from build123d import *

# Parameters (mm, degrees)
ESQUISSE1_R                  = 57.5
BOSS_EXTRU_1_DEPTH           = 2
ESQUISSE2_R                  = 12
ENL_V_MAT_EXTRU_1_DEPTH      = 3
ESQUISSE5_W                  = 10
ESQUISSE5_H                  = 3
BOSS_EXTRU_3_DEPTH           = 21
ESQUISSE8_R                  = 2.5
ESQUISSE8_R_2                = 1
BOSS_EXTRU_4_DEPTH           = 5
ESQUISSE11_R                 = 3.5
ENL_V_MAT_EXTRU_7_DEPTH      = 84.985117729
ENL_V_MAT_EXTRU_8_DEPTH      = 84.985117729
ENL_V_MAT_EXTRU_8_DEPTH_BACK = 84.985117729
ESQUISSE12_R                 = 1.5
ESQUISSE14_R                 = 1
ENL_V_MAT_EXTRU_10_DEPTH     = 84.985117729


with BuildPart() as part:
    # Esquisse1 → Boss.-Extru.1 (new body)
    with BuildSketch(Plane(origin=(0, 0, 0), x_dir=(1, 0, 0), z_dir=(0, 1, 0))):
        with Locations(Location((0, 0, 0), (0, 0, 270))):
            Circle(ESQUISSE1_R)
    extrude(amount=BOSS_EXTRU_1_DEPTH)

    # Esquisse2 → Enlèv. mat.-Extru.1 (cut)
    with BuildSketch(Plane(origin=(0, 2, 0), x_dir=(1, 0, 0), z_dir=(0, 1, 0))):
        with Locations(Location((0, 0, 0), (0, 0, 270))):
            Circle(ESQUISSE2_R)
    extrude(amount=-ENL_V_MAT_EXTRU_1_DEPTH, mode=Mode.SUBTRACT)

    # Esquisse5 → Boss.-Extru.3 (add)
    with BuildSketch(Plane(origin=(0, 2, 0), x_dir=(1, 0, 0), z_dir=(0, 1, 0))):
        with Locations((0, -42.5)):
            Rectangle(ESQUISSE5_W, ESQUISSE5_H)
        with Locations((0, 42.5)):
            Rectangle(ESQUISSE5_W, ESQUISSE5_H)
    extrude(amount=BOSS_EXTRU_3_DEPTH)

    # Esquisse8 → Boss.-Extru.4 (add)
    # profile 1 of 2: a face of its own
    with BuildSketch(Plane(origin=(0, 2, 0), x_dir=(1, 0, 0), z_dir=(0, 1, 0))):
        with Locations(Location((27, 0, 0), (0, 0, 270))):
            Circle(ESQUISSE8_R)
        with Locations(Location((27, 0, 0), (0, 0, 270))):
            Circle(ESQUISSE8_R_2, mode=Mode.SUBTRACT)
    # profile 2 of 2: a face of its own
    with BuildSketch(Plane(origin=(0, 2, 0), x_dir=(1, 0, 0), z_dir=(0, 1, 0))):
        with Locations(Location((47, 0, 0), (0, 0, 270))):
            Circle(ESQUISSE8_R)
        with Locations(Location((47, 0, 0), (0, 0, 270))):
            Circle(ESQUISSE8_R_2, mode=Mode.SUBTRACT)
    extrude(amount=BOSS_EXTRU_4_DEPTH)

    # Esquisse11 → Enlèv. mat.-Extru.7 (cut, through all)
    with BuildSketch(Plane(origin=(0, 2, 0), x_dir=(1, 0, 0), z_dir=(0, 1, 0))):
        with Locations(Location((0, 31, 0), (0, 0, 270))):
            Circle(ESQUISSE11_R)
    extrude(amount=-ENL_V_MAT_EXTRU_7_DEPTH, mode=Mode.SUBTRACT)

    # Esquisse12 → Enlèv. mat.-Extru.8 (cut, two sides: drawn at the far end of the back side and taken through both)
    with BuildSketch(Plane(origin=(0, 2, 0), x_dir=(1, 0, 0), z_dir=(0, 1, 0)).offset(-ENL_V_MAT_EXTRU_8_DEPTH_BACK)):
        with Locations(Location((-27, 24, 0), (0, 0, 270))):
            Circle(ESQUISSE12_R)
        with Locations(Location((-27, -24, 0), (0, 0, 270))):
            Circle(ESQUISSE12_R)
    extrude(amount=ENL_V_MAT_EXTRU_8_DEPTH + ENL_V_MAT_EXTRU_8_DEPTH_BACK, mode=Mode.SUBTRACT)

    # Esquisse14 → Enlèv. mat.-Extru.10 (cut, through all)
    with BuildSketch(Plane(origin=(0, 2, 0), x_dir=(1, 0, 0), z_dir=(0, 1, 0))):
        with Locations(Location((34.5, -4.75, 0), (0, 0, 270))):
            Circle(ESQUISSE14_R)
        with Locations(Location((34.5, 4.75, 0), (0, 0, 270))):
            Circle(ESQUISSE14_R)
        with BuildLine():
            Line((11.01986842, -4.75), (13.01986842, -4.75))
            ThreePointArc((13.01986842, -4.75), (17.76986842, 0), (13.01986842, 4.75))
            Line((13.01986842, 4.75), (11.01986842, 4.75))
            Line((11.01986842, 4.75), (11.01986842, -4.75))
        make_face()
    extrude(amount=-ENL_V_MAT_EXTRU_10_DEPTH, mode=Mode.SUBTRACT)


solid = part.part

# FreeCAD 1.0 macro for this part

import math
import FreeCAD as App
import Part
import Sketcher


def add_polygon(sketch, points):
    """Adds a closed chain of lines whose ends are joined by coincident constraints."""
    first, n = sketch.GeometryCount, len(points)
    for a, b in zip(points, points[1:] + points[:1]):
        sketch.addGeometry(Part.LineSegment(App.Vector(*a, 0), App.Vector(*b, 0)), False)
    for i in range(n):
        sketch.addConstraint(Sketcher.Constraint("Coincident", first + i, 2, first + (i + 1) % n, 1))

doc = App.newDocument("Part")
body = doc.addObject("PartDesign::Body", "Body")

# Sketch on XZ plane
sketch1 = body.newObject("Sketcher::SketchObject", "Sketch")
sketch1.AttachmentSupport = (doc.getObject("XZ_Plane"), [""])
sketch1.MapMode = "FlatFace"
sketch1.addGeometry(Part.Circle(App.Vector(0, 0, 0), App.Vector(0, 0, 1), 58), False)
sketch1.addConstraint([
    Sketcher.Constraint("Coincident", 0, 3, -1, 1),
    Sketcher.Constraint("Diameter", 0, 115.0),
])
pad1 = body.newObject("PartDesign::Pad", "Pad")
pad1.Profile = sketch1
pad1.Length = 2
pad1.Reversed = True

# Sketch on XZ plane
sketch2 = body.newObject("Sketcher::SketchObject", "Sketch001")
sketch2.AttachmentSupport = (doc.getObject("XZ_Plane"), [""])
sketch2.MapMode = "FlatFace"
sketch2.AttachmentOffset = App.Placement(App.Vector(0, 0, -2), App.Rotation())
sketch2.addGeometry(Part.Circle(App.Vector(0, 0, 0), App.Vector(0, 0, 1), 12), False)
sketch2.addConstraint([
    Sketcher.Constraint("Coincident", 0, 3, -1, 1),
    Sketcher.Constraint("Diameter", 0, 24.0),
])
pocket1 = body.newObject("PartDesign::Pocket", "Pocket")
pocket1.Profile = sketch2
pocket1.Length = 3
pocket1.Reversed = True

# Sketch on XZ plane
sketch3 = body.newObject("Sketcher::SketchObject", "Sketch002")
sketch3.AttachmentSupport = (doc.getObject("XZ_Plane"), [""])
sketch3.MapMode = "FlatFace"
sketch3.AttachmentOffset = App.Placement(App.Vector(0, 0, -2), App.Rotation())
add_polygon(sketch3, [(-5, 41), (-5, 44), (5, 44), (5, 41)])  # lines 0-3
add_polygon(sketch3, [(-5, -44), (-5, -41), (5, -41), (5, -44)])  # lines 4-7
sketch3.addConstraint([
    Sketcher.Constraint("Vertical", 0),
    Sketcher.Constraint("Horizontal", 1),
    Sketcher.Constraint("Vertical", 2),
    Sketcher.Constraint("Horizontal", 3),
    Sketcher.Constraint("Vertical", 4),
    Sketcher.Constraint("Horizontal", 5),
    Sketcher.Constraint("Vertical", 6),
    Sketcher.Constraint("Horizontal", 7),
    Sketcher.Constraint("Symmetric", 2, 2, 4, 2, -1, 1),
    Sketcher.Constraint("Symmetric", 0, 2, 6, 2, -1, 1),
    Sketcher.Constraint("Vertical", 3, 2, 4, 2),
    Sketcher.Constraint("DistanceX", 1, 1, 1, 2, 10.0),
    Sketcher.Constraint("DistanceY", 0, 1, 0, 2, 3.0),
    Sketcher.Constraint("DistanceY", -1, 1, 0, 2, 44.0),
])
pad2 = body.newObject("PartDesign::Pad", "Pad001")
pad2.Profile = sketch3
pad2.Length = 21
pad2.Reversed = True

# Sketch on XZ plane
sketch4 = body.newObject("Sketcher::SketchObject", "Sketch003")
sketch4.AttachmentSupport = (doc.getObject("XZ_Plane"), [""])
sketch4.MapMode = "FlatFace"
sketch4.AttachmentOffset = App.Placement(App.Vector(0, 0, -2), App.Rotation())
sketch4.addGeometry([
    Part.Circle(App.Vector(27, 0, 0), App.Vector(0, 0, 1), 2.5),
    Part.Circle(App.Vector(27, 0, 0), App.Vector(0, 0, 1), 1),
    Part.Circle(App.Vector(47, 0, 0), App.Vector(0, 0, 1), 2.5),
    Part.Circle(App.Vector(47, 0, 0), App.Vector(0, 0, 1), 1),
], False)
sketch4.addConstraint([
    Sketcher.Constraint("Coincident", 1, 3, 0, 3),
    Sketcher.Constraint("Coincident", 3, 3, 2, 3),
    Sketcher.Constraint("Equal", 0, 2),
    Sketcher.Constraint("Equal", 1, 3),
    Sketcher.Constraint("PointOnObject", 0, 3, -1),
    Sketcher.Constraint("PointOnObject", 2, 3, -1),
    Sketcher.Constraint("Diameter", 0, 5.0),
    Sketcher.Constraint("Diameter", 1, 2.0),
    Sketcher.Constraint("DistanceX", -1, 1, 0, 3, 27.0),
    Sketcher.Constraint("DistanceX", -1, 1, 2, 3, 47.0),
])
pad3 = body.newObject("PartDesign::Pad", "Pad002")
pad3.Profile = sketch4
pad3.Length = 5
pad3.Reversed = True

# Sketch on XZ plane
sketch5 = body.newObject("Sketcher::SketchObject", "Sketch004")
sketch5.AttachmentSupport = (doc.getObject("XZ_Plane"), [""])
sketch5.MapMode = "FlatFace"
sketch5.AttachmentOffset = App.Placement(App.Vector(0, 0, -2), App.Rotation())
sketch5.addGeometry(Part.Circle(App.Vector(0, -31, 0), App.Vector(0, 0, 1), 3.5), False)
sketch5.addConstraint([
    Sketcher.Constraint("PointOnObject", 0, 3, -2),
    Sketcher.Constraint("Diameter", 0, 7.0),
    Sketcher.Constraint("DistanceY", 0, 3, -1, 1, 31.0),
])
pocket2 = body.newObject("PartDesign::Pocket", "Pocket001")
pocket2.Profile = sketch5
pocket2.Type = "ThroughAll"
pocket2.Reversed = True

# Sketch on XZ plane
sketch6 = body.newObject("Sketcher::SketchObject", "Sketch005")
sketch6.AttachmentSupport = (doc.getObject("XZ_Plane"), [""])
sketch6.MapMode = "FlatFace"
sketch6.AttachmentOffset = App.Placement(App.Vector(0, 0, -2), App.Rotation())
sketch6.addGeometry([
    Part.Circle(App.Vector(-27, -24, 0), App.Vector(0, 0, 1), 1.5),
    Part.Circle(App.Vector(-27, 24, 0), App.Vector(0, 0, 1), 1.5),
], False)
sketch6.addConstraint([
    Sketcher.Constraint("Equal", 0, 1),
    Sketcher.Constraint("Symmetric", 0, 3, 1, 3, -1),
    Sketcher.Constraint("Diameter", 0, 3.0),
    Sketcher.Constraint("DistanceX", 0, 3, -1, 1, 27.0),
    Sketcher.Constraint("DistanceY", 0, 3, -1, 1, 24.0),
])
pocket3 = body.newObject("PartDesign::Pocket", "Pocket002")
pocket3.Profile = sketch6
pocket3.Type = "ThroughAll"
pocket3.Midplane = True

# Sketch on XZ plane
sketch7 = body.newObject("Sketcher::SketchObject", "Sketch006")
sketch7.AttachmentSupport = (doc.getObject("XZ_Plane"), [""])
sketch7.MapMode = "FlatFace"
sketch7.AttachmentOffset = App.Placement(App.Vector(0, 0, -2), App.Rotation())
sketch7.addGeometry([
    Part.Circle(App.Vector(34.5, 4.8, 0), App.Vector(0, 0, 1), 1),  # 0
    Part.Circle(App.Vector(34.5, -4.8, 0), App.Vector(0, 0, 1), 1),  # 1
    Part.LineSegment(App.Vector(11, 4.8, 0), App.Vector(13, 4.8, 0)),  # 2
    Part.ArcOfCircle(Part.Circle(App.Vector(13, 0, 0), App.Vector(0, 0, 1), 4.8), math.radians(-90), math.radians(90)),  # 3
    Part.LineSegment(App.Vector(13, -4.8, 0), App.Vector(11, -4.8, 0)),  # 4
    Part.LineSegment(App.Vector(11, -4.8, 0), App.Vector(11, 4.8, 0)),  # 5
], False)
sketch7.addConstraint([
    Sketcher.Constraint("Tangent", 2, 2, 3, 2),
    Sketcher.Constraint("Tangent", 3, 1, 4, 1),
    Sketcher.Constraint("Coincident", 4, 2, 5, 1),
    Sketcher.Constraint("Coincident", 5, 2, 2, 1),
    Sketcher.Constraint("Horizontal", 2),
    Sketcher.Constraint("Horizontal", 4),
    Sketcher.Constraint("Vertical", 5),
    Sketcher.Constraint("Equal", 0, 1),
    Sketcher.Constraint("Symmetric", 0, 3, 1, 3, -1),
    Sketcher.Constraint("PointOnObject", 3, 3, -1),
    Sketcher.Constraint("Horizontal", 0, 3, 2, 2),
    Sketcher.Constraint("Diameter", 0, 2.0),
    Sketcher.Constraint("DistanceX", 2, 1, 2, 2, 2.0),
    Sketcher.Constraint("Radius", 3, 4.75),
    Sketcher.Constraint("DistanceX", -1, 1, 0, 3, 34.5),
    Sketcher.Constraint("DistanceX", -1, 1, 3, 3, 13.019868),
])
pocket4 = body.newObject("PartDesign::Pocket", "Pocket003")
pocket4.Profile = sketch7
pocket4.Type = "ThroughAll"
pocket4.Reversed = True

doc.recompute()
